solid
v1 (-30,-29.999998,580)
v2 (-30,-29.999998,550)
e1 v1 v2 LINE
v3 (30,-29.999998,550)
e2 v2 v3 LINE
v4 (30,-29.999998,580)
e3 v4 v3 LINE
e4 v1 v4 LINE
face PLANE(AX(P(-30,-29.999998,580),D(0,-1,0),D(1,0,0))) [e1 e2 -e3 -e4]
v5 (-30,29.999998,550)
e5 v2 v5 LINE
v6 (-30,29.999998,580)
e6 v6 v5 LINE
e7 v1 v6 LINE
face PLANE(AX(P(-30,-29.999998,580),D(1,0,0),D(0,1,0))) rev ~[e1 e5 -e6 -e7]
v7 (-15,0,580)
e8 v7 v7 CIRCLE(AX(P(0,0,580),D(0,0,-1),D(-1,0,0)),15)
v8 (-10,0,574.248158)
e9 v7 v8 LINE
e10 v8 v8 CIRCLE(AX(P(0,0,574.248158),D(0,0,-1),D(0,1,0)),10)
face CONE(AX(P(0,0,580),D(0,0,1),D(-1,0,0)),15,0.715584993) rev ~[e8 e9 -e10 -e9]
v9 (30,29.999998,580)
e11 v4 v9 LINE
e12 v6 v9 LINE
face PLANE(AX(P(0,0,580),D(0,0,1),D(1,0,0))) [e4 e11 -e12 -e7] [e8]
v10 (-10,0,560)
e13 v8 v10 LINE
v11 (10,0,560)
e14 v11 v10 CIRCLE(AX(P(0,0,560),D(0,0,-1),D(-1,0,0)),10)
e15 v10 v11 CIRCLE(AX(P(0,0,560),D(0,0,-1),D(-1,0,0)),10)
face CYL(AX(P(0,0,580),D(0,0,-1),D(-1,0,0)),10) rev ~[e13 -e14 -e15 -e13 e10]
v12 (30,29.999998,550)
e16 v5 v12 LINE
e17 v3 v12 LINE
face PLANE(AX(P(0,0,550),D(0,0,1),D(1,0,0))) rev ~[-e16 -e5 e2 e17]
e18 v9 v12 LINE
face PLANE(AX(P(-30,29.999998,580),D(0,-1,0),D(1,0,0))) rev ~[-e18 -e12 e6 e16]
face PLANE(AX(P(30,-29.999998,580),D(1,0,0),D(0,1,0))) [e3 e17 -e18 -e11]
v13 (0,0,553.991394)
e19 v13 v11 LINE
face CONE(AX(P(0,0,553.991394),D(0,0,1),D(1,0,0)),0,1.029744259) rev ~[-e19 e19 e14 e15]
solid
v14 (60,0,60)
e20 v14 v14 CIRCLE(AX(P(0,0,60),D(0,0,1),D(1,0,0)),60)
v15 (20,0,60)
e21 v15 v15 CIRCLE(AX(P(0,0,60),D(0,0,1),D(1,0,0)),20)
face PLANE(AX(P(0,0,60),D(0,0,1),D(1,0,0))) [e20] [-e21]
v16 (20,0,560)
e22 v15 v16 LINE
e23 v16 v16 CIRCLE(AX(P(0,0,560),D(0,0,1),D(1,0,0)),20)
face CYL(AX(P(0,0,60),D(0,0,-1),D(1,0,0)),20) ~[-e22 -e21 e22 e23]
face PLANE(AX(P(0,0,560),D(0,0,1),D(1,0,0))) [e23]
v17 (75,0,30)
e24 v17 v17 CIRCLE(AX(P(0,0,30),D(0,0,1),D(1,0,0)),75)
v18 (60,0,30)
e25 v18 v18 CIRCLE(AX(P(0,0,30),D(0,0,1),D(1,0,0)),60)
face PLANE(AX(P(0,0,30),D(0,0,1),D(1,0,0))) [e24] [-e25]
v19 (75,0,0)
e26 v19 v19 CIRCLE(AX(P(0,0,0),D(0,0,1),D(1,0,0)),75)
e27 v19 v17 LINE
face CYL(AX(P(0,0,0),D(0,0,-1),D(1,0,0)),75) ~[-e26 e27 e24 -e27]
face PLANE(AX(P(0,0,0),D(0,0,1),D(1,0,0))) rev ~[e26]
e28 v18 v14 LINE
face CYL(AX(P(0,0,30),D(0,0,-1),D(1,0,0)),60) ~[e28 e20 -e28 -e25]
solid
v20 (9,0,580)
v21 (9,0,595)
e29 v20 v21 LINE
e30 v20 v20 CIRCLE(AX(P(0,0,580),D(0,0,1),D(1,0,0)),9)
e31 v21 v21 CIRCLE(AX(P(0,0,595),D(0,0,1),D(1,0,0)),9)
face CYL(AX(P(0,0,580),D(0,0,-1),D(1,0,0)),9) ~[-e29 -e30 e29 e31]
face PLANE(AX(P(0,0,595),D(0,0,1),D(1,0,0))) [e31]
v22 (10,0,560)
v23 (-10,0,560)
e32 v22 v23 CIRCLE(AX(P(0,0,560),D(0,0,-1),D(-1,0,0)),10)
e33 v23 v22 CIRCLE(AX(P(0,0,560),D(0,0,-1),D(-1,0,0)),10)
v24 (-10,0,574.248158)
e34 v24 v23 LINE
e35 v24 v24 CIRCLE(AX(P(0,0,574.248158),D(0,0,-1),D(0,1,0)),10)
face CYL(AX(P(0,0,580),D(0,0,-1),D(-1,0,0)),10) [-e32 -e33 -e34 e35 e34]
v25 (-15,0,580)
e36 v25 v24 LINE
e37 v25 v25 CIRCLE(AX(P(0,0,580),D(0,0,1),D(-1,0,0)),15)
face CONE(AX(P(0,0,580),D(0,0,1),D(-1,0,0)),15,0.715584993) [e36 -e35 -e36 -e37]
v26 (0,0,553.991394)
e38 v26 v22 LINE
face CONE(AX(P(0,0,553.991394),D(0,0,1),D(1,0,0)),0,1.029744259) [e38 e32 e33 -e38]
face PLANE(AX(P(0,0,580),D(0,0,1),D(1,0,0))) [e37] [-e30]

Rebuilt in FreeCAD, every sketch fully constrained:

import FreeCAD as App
import Part
import Sketcher
from FreeCAD import Vector
Q = App.Units.Quantity

doc = App.newDocument("Part")
body = doc.addObject("PartDesign::Body", "Body")

# Sketch on XY plane
sketch1 = body.newObject("Sketcher::SketchObject", "Sketch")
sketch1.AttachmentSupport = (doc.getObject("XY_Plane"), [""])
sketch1.MapMode = "FlatFace"
sketch1.addGeometry(Part.Circle(Vector(0, 0, 0), Vector(0, 0, 1), 75), False)
sketch1.addConstraint(Sketcher.Constraint("Coincident", 0, 3, -1, 1))
sketch1.addConstraint(Sketcher.Constraint("Diameter", 0, Q("150 mm")))
pad1 = body.newObject("PartDesign::Pad", "Pad")
pad1.Profile = sketch1
pad1.Length = 30

# Sketch on XY plane
sketch2 = body.newObject("Sketcher::SketchObject", "Sketch001")
sketch2.AttachmentSupport = (doc.getObject("XY_Plane"), [""])
sketch2.MapMode = "FlatFace"
sketch2.AttachmentOffset = App.Placement(Vector(0, 0, 30), App.Rotation())
sketch2.addGeometry(Part.Circle(Vector(0, 0, 0), Vector(0, 0, 1), 60), False)
sketch2.addConstraint(Sketcher.Constraint("Coincident", 0, 3, -1, 1))
sketch2.addConstraint(Sketcher.Constraint("Diameter", 0, Q("120 mm")))
pad2 = body.newObject("PartDesign::Pad", "Pad001")
pad2.Profile = sketch2
pad2.Length = 30

# Sketch on XY plane
sketch3 = body.newObject("Sketcher::SketchObject", "Sketch002")
sketch3.AttachmentSupport = (doc.getObject("XY_Plane"), [""])
sketch3.MapMode = "FlatFace"
sketch3.AttachmentOffset = App.Placement(Vector(0, 0, 60), App.Rotation())
sketch3.addGeometry(Part.Circle(Vector(0, 0, 0), Vector(0, 0, 1), 20), False)
sketch3.addConstraint(Sketcher.Constraint("Coincident", 0, 3, -1, 1))
sketch3.addConstraint(Sketcher.Constraint("Diameter", 0, Q("40 mm")))
pad3 = body.newObject("PartDesign::Pad", "Pad002")
pad3.Profile = sketch3
pad3.Length = 500
body2 = doc.addObject("PartDesign::Body", "Body001")

# Sketch on XY plane
sketch4 = body2.newObject("Sketcher::SketchObject", "Sketch003")
sketch4.AttachmentSupport = (doc.getObject("XY_Plane001"), [""])
sketch4.MapMode = "FlatFace"
sketch4.AttachmentOffset = App.Placement(Vector(0, 0, 580), App.Rotation())
sketch4.addGeometry(Part.LineSegment(Vector(-30, 29.999998, 0), Vector(-30, -29.999998, 0)), False)
sketch4.addGeometry(Part.LineSegment(Vector(-30, -29.999998, 0), Vector(30, -29.999998, 0)), False)
sketch4.addGeometry(Part.LineSegment(Vector(30, -29.999998, 0), Vector(30, 29.999998, 0)), False)
sketch4.addGeometry(Part.LineSegment(Vector(30, 29.999998, 0), Vector(-30, 29.999998, 0)), False)
sketch4.addConstraint(Sketcher.Constraint("Coincident", 0, 2, 1, 1))
sketch4.addConstraint(Sketcher.Constraint("Coincident", 1, 2, 2, 1))
sketch4.addConstraint(Sketcher.Constraint("Coincident", 2, 2, 3, 1))
sketch4.addConstraint(Sketcher.Constraint("Coincident", 3, 2, 0, 1))
sketch4.addConstraint(Sketcher.Constraint("Vertical", 0))
sketch4.addConstraint(Sketcher.Constraint("Horizontal", 1))
sketch4.addConstraint(Sketcher.Constraint("Vertical", 2))
sketch4.addConstraint(Sketcher.Constraint("Horizontal", 3))
sketch4.addConstraint(Sketcher.Constraint("Symmetric", 0, 2, 2, 2, -1, 1))
sketch4.addConstraint(Sketcher.Constraint("DistanceX", 1, 1, 1, 2, Q("60 mm")))
sketch4.addConstraint(Sketcher.Constraint("DistanceY", 0, 2, -1, 1, Q("29.999998 mm")))
pad4 = body2.newObject("PartDesign::Pad", "Pad003")
pad4.Profile = sketch4
pad4.Length = 30
pad4.Reversed = True

# Sketch on XY plane
sketch5 = body2.newObject("Sketcher::SketchObject", "Sketch004")
sketch5.AttachmentSupport = (doc.getObject("XY_Plane001"), [""])
sketch5.MapMode = "FlatFace"
sketch5.AttachmentOffset = App.Placement(Vector(0, 0, 580), App.Rotation())
sketch5.addGeometry(Part.Circle(Vector(0, 0, 0), Vector(0, 0, 1), 10), False)
sketch5.addConstraint(Sketcher.Constraint("Coincident", 0, 3, -1, 1))
sketch5.addConstraint(Sketcher.Constraint("Diameter", 0, Q("20 mm")))
doc.recompute()
hole = body2.newObject("PartDesign::Hole", "Hole")
hole.Profile = sketch5
hole.ThreadType = "None"
hole.Diameter = 20
hole.DepthType = "Dimension"
hole.Depth = 20
hole.DrillPoint = "Angled"
hole.DrillPointAngle = 118
hole.HoleCutType = "Countersink"
hole.HoleCutDiameter = 30
hole.HoleCutCountersinkAngle = 82
body3 = doc.addObject("PartDesign::Body", "Body002")

# Sketch on XY plane
sketch6 = body3.newObject("Sketcher::SketchObject", "Sketch005")
sketch6.AttachmentSupport = (doc.getObject("XY_Plane002"), [""])
sketch6.MapMode = "FlatFace"
sketch6.AttachmentOffset = App.Placement(Vector(0, 0, 580), App.Rotation())
sketch6.addGeometry(Part.Circle(Vector(0, 0, 0), Vector(0, 0, 1), 15), False)
sketch6.addConstraint(Sketcher.Constraint("Coincident", 0, 3, -1, 1))
sketch6.addConstraint(Sketcher.Constraint("Diameter", 0, Q("30 mm")))
pad5 = body3.newObject("PartDesign::Pad", "Pad004")
pad5.Profile = sketch6
pad5.Length = 30
pad5.Reversed = True

# Sketch on XY plane
sketch7 = body3.newObject("Sketcher::SketchObject", "Sketch006")
sketch7.AttachmentSupport = (doc.getObject("XY_Plane002"), [""])
sketch7.MapMode = "FlatFace"
sketch7.AttachmentOffset = App.Placement(Vector(0, 0, 580), App.Rotation())
sketch7.addGeometry(Part.Circle(Vector(0, 0, 0), Vector(0, 0, 1), 9), False)
sketch7.addConstraint(Sketcher.Constraint("Coincident", 0, 3, -1, 1))
sketch7.addConstraint(Sketcher.Constraint("Diameter", 0, Q("18 mm")))
pad6 = body3.newObject("PartDesign::Pad", "Pad005")
pad6.Profile = sketch7
pad6.Length = 15
doc.recompute()

body4 = doc.addObject("PartDesign::Body", "Body003")
body4.BaseFeature = body2
boolean = body3.newObject("PartDesign::Boolean", "Boolean")
boolean.Type = "Cut"
boolean.addObjects([body4])
doc.recompute()

doc.recompute()
